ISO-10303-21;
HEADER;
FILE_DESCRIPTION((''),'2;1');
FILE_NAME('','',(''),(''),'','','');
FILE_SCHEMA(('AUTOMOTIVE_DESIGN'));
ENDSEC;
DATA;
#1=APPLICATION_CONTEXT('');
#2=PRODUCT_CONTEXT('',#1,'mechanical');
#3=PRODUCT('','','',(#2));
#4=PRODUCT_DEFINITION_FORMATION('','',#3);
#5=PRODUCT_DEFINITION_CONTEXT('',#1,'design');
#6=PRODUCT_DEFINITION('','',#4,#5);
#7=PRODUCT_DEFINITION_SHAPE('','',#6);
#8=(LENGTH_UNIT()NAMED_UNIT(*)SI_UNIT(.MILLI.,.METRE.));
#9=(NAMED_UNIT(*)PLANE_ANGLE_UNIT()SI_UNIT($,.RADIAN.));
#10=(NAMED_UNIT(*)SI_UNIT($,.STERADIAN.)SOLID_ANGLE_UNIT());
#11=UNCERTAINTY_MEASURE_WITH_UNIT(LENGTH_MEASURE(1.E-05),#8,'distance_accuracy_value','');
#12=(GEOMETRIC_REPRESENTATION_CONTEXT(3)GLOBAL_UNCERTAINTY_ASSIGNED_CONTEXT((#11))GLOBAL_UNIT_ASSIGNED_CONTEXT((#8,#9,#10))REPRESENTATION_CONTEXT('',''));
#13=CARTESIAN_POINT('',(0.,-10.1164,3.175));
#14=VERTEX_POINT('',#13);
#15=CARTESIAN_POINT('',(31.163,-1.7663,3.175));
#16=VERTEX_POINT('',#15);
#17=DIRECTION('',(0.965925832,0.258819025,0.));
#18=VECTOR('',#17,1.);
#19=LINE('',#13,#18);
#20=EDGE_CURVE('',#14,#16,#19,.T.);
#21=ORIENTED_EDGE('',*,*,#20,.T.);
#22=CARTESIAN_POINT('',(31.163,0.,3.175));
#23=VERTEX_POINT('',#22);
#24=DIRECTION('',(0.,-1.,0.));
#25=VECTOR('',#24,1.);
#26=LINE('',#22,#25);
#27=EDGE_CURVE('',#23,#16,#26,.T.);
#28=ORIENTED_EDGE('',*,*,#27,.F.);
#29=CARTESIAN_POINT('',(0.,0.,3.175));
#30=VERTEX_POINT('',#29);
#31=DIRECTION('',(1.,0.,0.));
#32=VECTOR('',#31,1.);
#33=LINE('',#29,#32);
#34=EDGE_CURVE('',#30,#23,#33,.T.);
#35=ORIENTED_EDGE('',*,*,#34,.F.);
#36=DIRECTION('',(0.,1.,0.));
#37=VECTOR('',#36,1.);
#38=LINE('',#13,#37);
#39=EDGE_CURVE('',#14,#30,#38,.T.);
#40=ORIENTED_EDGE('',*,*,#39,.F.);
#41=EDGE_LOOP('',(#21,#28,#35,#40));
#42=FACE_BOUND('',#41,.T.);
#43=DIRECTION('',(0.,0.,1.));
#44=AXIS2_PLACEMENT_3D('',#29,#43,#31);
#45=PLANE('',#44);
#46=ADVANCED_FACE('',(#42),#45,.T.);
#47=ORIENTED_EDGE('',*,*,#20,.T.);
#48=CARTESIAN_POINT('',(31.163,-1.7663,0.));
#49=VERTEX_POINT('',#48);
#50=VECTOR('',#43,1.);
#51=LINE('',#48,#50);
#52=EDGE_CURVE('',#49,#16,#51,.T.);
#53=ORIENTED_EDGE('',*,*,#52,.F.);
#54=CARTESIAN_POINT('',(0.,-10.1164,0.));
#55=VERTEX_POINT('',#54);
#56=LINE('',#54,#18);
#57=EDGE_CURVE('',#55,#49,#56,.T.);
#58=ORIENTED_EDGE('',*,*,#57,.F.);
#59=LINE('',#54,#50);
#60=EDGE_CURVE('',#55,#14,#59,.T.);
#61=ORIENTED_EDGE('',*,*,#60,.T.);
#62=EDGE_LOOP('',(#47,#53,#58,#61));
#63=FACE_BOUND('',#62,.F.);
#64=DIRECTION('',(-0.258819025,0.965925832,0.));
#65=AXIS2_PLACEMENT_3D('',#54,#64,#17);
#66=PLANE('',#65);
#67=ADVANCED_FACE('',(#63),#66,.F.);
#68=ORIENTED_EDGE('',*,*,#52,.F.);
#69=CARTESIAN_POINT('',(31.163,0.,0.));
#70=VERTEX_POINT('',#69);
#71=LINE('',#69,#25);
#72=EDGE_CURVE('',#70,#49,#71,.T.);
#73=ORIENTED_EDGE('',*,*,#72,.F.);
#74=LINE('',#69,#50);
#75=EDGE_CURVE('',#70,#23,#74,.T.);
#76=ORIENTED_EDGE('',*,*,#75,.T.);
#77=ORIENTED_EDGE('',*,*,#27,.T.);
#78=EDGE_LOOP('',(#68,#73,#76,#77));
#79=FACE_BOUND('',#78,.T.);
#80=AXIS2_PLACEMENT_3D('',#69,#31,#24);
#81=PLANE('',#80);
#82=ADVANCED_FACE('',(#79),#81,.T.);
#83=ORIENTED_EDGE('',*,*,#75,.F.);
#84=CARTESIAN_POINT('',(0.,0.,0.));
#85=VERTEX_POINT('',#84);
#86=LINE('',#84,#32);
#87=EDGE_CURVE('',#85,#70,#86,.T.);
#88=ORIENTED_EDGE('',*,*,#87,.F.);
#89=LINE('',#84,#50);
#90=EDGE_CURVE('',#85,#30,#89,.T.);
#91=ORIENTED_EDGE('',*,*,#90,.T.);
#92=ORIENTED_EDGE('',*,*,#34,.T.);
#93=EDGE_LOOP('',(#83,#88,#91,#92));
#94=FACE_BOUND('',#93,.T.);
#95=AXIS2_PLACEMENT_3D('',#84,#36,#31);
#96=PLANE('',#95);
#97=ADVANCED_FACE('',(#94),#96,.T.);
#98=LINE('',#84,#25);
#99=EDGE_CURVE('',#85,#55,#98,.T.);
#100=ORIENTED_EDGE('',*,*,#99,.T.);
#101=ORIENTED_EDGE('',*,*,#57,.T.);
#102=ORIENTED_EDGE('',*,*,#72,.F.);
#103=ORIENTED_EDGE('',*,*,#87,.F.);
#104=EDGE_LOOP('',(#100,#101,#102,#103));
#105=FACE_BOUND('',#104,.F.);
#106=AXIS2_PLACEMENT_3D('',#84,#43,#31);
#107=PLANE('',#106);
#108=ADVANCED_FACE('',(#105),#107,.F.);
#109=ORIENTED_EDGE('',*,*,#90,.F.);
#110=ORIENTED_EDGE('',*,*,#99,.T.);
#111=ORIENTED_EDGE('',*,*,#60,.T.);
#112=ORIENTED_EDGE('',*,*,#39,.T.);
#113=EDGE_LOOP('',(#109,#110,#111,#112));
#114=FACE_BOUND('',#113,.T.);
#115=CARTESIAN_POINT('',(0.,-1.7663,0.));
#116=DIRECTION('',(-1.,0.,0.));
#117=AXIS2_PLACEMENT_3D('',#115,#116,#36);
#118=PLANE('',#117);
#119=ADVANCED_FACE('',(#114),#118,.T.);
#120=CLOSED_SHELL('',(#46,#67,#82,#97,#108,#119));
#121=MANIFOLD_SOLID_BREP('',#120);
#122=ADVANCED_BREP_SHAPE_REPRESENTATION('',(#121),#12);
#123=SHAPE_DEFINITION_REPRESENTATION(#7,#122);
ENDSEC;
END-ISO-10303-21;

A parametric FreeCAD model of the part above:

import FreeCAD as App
import Part
import Sketcher
Q = App.Units.Quantity


def add_polygon(sketch, points):
    """Adds a closed chain of lines whose ends are joined by coincident constraints."""
    first, n = sketch.GeometryCount, len(points)
    for a, b in zip(points, points[1:] + points[:1]):
        sketch.addGeometry(Part.LineSegment(App.Vector(*a, 0), App.Vector(*b, 0)), False)
    for i in range(n):
        sketch.addConstraint(Sketcher.Constraint("Coincident", first + i, 2, first + (i + 1) % n, 1))

doc = App.newDocument("Part")
body = doc.addObject("PartDesign::Body", "Body")

sketch1 = body.newObject("Sketcher::SketchObject", "Sketch")
sketch1.AttachmentSupport = (doc.getObject("XY_Plane"), [""])
sketch1.MapMode = "FlatFace"
add_polygon(sketch1, [(31.2, 0), (0, 0), (0, -10.1), (31.2, -1.8)])
sketch1.addConstraint([
    Sketcher.Constraint("Horizontal", 0),
    Sketcher.Constraint("Vertical", 1),
    Sketcher.Constraint("Vertical", 3),
    Sketcher.Constraint("Coincident", 0, 2, -1, 1),
    Sketcher.Constraint("DistanceX", 0, 2, 0, 1, Q("1.2269 in")),
    Sketcher.Constraint("Angle", 2, Q("15 deg")),
    Sketcher.Constraint("DistanceY", 1, 2, 1, 1, Q("10.1164 mm")),
])
pad1 = body.newObject("PartDesign::Pad", "Pad")
pad1.Profile = sketch1
pad1.Length = Q("0.125 in")

doc.recompute()
